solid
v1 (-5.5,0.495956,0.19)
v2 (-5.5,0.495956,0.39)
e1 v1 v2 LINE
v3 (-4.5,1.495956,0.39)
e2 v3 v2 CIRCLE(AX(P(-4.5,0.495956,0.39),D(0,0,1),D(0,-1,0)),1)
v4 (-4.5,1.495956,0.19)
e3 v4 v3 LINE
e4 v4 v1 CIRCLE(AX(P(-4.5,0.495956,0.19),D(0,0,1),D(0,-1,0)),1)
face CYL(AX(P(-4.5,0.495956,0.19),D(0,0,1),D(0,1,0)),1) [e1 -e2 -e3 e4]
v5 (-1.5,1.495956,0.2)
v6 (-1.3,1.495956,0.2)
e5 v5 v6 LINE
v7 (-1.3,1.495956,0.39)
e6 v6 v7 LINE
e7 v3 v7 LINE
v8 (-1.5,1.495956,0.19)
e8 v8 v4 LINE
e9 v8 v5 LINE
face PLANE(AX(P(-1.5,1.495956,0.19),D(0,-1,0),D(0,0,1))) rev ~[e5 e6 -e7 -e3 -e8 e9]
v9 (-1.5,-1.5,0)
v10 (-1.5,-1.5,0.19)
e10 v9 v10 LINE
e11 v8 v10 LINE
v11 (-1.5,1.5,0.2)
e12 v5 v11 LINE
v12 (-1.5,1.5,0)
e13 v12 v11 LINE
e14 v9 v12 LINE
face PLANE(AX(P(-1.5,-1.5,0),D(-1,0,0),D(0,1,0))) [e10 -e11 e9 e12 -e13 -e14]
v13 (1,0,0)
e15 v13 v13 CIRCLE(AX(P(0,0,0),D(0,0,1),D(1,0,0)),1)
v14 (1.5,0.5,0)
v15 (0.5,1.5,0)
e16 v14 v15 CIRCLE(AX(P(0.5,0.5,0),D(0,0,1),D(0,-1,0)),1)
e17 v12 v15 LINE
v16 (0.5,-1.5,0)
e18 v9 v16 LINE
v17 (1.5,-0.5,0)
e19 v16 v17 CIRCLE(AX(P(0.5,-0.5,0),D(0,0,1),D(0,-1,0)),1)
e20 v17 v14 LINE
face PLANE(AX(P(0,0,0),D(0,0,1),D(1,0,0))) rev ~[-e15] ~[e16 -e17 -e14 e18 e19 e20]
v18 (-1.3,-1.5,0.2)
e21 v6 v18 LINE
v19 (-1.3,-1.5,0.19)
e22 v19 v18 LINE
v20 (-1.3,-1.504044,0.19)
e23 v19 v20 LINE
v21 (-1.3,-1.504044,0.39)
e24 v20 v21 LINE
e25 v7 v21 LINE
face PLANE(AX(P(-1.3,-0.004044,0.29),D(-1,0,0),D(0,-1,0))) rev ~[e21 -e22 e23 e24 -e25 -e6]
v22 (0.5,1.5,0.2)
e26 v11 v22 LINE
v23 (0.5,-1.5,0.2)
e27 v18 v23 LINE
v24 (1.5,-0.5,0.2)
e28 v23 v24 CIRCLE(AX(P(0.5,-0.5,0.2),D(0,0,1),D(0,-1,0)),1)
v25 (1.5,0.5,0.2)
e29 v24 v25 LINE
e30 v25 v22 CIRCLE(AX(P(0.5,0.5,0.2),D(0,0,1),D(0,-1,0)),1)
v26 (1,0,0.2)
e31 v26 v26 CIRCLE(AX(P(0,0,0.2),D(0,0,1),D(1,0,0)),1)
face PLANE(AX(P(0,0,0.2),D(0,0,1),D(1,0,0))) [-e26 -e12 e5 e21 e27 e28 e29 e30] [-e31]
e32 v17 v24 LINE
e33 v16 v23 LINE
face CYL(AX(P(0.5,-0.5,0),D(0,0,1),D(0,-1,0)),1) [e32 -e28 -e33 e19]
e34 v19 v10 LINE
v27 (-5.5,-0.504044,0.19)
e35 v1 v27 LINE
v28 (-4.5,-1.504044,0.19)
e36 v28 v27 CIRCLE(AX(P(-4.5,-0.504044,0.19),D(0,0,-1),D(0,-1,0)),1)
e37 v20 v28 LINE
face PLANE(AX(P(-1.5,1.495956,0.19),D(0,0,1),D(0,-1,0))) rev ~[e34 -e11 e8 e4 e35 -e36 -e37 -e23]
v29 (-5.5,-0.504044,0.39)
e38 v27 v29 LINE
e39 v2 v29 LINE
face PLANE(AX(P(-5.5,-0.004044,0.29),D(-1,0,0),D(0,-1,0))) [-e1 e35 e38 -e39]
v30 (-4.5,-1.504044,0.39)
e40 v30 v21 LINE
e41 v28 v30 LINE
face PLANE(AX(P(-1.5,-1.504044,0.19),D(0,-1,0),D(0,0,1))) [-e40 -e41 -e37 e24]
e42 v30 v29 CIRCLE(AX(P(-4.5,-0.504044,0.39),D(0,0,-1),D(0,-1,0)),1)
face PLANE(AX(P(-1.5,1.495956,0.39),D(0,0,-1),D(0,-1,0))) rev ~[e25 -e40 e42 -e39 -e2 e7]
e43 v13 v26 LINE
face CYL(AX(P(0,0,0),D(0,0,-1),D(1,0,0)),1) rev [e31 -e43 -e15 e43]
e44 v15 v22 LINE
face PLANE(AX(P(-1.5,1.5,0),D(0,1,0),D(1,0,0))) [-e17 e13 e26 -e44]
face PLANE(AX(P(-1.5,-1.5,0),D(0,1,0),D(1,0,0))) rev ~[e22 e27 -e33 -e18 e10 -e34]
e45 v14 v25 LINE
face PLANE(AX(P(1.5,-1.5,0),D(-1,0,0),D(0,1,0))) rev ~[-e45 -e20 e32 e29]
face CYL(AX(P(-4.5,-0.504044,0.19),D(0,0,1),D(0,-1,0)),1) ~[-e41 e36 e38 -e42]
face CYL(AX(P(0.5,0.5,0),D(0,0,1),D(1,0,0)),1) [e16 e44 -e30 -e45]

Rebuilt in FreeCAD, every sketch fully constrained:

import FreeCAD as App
import Part
import Sketcher
from FreeCAD import Vector
Q = App.Units.Quantity


def edges_at(feature, points):
    """Names of the edges that pass closest to the given points."""
    edges = feature.Shape.Edges
    near = lambda p: min(range(len(edges)), key=lambda i: edges[i].distToShape(Part.Vertex(*p))[0])
    return sorted({f"Edge{near(p) + 1}" for p in points})

doc = App.newDocument("Part")
body = doc.addObject("PartDesign::Body", "Body")

# Sketch on XY plane
sketch1 = body.newObject("Sketcher::SketchObject", "Sketch")
sketch1.AttachmentSupport = (doc.getObject("XY_Plane"), [""])
sketch1.MapMode = "FlatFace"
sketch1.addGeometry(Part.LineSegment(Vector(-1.5, 1.5, 0), Vector(-1.5, -1.5, 0)), False)
sketch1.addGeometry(Part.LineSegment(Vector(-1.5, -1.5, 0), Vector(1.5, -1.5, 0)), False)
sketch1.addGeometry(Part.LineSegment(Vector(1.5, -1.5, 0), Vector(1.5, 1.5, 0)), False)
sketch1.addGeometry(Part.LineSegment(Vector(1.5, 1.5, 0), Vector(-1.5, 1.5, 0)), False)
sketch1.addGeometry(Part.Circle(Vector(0, 0, 0), Vector(0, 0, 1), 1), False)
sketch1.addConstraint(Sketcher.Constraint("Coincident", 0, 2, 1, 1))
sketch1.addConstraint(Sketcher.Constraint("Coincident", 1, 2, 2, 1))
sketch1.addConstraint(Sketcher.Constraint("Coincident", 2, 2, 3, 1))
sketch1.addConstraint(Sketcher.Constraint("Coincident", 3, 2, 0, 1))
sketch1.addConstraint(Sketcher.Constraint("Vertical", 0))
sketch1.addConstraint(Sketcher.Constraint("Horizontal", 1))
sketch1.addConstraint(Sketcher.Constraint("Vertical", 2))
sketch1.addConstraint(Sketcher.Constraint("Horizontal", 3))
sketch1.addConstraint(Sketcher.Constraint("Coincident", 4, 3, -1, 1))
sketch1.addConstraint(Sketcher.Constraint("Symmetric", 0, 2, 2, 2, -1, 1))
sketch1.addConstraint(Sketcher.Constraint("Equal", 3, 0))
sketch1.addConstraint(Sketcher.Constraint("Diameter", 4, Q("2 mm")))
sketch1.addConstraint(Sketcher.Constraint("DistanceX", 1, 1, 1, 2, Q("3 mm")))
pad1 = body.newObject("PartDesign::Pad", "Pad")
pad1.Profile = sketch1
pad1.Length = 0.2

# Sketch on YZ plane
sketch2 = body.newObject("Sketcher::SketchObject", "Sketch001")
sketch2.AttachmentSupport = (doc.getObject("YZ_Plane"), [""])
sketch2.MapMode = "FlatFace"
sketch2.AttachmentOffset = App.Placement(Vector(0, 0, -1.5), App.Rotation())
sketch2.addGeometry(Part.LineSegment(Vector(1.5, 0.39, 0), Vector(1.5, 0.19, 0)), False)
sketch2.addGeometry(Part.LineSegment(Vector(1.5, 0.19, 0), Vector(-1.5, 0.19, 0)), False)
sketch2.addGeometry(Part.LineSegment(Vector(-1.5, 0.19, 0), Vector(-1.5, 0.39, 0)), False)
sketch2.addGeometry(Part.LineSegment(Vector(-1.5, 0.39, 0), Vector(1.5, 0.39, 0)), False)
sketch2.addConstraint(Sketcher.Constraint("Coincident", 0, 2, 1, 1))
sketch2.addConstraint(Sketcher.Constraint("Coincident", 1, 2, 2, 1))
sketch2.addConstraint(Sketcher.Constraint("Coincident", 2, 2, 3, 1))
sketch2.addConstraint(Sketcher.Constraint("Coincident", 3, 2, 0, 1))
sketch2.addConstraint(Sketcher.Constraint("Vertical", 0))
sketch2.addConstraint(Sketcher.Constraint("Horizontal", 1))
sketch2.addConstraint(Sketcher.Constraint("Vertical", 2))
sketch2.addConstraint(Sketcher.Constraint("Horizontal", 3))
sketch2.addConstraint(Sketcher.Constraint("DistanceX", 1, 2, 1, 1, Q("3 mm")))
sketch2.addConstraint(Sketcher.Constraint("DistanceY", 0, 2, 0, 1, Q("0.2 mm")))
sketch2.addConstraint(Sketcher.Constraint("DistanceY", -1, 1, 0, 2, Q("0.19 mm")))
sketch2.addConstraint(Sketcher.Constraint("DistanceX", -1, 1, 0, 2, Q("1.495956 mm")))
pad2 = body.newObject("PartDesign::Pad", "Pad001")
pad2.Profile = sketch2
pad2.Type = "TwoLengths"
pad2.Length = 4
pad2.Length2 = 0.2
pad2.Reversed = True
doc.recompute()

fillet = body.newObject("PartDesign::Fillet", "Fillet")
fillet.Base = (pad2, edges_at(pad2, [
    (1.5, -1.5, 0.1),
    (1.5, 1.5, 0.1),
    (-5.5, -1.504, 0.29),
    (-5.5, 1.496, 0.29),
]))
fillet.Radius = 1

doc.recompute()
